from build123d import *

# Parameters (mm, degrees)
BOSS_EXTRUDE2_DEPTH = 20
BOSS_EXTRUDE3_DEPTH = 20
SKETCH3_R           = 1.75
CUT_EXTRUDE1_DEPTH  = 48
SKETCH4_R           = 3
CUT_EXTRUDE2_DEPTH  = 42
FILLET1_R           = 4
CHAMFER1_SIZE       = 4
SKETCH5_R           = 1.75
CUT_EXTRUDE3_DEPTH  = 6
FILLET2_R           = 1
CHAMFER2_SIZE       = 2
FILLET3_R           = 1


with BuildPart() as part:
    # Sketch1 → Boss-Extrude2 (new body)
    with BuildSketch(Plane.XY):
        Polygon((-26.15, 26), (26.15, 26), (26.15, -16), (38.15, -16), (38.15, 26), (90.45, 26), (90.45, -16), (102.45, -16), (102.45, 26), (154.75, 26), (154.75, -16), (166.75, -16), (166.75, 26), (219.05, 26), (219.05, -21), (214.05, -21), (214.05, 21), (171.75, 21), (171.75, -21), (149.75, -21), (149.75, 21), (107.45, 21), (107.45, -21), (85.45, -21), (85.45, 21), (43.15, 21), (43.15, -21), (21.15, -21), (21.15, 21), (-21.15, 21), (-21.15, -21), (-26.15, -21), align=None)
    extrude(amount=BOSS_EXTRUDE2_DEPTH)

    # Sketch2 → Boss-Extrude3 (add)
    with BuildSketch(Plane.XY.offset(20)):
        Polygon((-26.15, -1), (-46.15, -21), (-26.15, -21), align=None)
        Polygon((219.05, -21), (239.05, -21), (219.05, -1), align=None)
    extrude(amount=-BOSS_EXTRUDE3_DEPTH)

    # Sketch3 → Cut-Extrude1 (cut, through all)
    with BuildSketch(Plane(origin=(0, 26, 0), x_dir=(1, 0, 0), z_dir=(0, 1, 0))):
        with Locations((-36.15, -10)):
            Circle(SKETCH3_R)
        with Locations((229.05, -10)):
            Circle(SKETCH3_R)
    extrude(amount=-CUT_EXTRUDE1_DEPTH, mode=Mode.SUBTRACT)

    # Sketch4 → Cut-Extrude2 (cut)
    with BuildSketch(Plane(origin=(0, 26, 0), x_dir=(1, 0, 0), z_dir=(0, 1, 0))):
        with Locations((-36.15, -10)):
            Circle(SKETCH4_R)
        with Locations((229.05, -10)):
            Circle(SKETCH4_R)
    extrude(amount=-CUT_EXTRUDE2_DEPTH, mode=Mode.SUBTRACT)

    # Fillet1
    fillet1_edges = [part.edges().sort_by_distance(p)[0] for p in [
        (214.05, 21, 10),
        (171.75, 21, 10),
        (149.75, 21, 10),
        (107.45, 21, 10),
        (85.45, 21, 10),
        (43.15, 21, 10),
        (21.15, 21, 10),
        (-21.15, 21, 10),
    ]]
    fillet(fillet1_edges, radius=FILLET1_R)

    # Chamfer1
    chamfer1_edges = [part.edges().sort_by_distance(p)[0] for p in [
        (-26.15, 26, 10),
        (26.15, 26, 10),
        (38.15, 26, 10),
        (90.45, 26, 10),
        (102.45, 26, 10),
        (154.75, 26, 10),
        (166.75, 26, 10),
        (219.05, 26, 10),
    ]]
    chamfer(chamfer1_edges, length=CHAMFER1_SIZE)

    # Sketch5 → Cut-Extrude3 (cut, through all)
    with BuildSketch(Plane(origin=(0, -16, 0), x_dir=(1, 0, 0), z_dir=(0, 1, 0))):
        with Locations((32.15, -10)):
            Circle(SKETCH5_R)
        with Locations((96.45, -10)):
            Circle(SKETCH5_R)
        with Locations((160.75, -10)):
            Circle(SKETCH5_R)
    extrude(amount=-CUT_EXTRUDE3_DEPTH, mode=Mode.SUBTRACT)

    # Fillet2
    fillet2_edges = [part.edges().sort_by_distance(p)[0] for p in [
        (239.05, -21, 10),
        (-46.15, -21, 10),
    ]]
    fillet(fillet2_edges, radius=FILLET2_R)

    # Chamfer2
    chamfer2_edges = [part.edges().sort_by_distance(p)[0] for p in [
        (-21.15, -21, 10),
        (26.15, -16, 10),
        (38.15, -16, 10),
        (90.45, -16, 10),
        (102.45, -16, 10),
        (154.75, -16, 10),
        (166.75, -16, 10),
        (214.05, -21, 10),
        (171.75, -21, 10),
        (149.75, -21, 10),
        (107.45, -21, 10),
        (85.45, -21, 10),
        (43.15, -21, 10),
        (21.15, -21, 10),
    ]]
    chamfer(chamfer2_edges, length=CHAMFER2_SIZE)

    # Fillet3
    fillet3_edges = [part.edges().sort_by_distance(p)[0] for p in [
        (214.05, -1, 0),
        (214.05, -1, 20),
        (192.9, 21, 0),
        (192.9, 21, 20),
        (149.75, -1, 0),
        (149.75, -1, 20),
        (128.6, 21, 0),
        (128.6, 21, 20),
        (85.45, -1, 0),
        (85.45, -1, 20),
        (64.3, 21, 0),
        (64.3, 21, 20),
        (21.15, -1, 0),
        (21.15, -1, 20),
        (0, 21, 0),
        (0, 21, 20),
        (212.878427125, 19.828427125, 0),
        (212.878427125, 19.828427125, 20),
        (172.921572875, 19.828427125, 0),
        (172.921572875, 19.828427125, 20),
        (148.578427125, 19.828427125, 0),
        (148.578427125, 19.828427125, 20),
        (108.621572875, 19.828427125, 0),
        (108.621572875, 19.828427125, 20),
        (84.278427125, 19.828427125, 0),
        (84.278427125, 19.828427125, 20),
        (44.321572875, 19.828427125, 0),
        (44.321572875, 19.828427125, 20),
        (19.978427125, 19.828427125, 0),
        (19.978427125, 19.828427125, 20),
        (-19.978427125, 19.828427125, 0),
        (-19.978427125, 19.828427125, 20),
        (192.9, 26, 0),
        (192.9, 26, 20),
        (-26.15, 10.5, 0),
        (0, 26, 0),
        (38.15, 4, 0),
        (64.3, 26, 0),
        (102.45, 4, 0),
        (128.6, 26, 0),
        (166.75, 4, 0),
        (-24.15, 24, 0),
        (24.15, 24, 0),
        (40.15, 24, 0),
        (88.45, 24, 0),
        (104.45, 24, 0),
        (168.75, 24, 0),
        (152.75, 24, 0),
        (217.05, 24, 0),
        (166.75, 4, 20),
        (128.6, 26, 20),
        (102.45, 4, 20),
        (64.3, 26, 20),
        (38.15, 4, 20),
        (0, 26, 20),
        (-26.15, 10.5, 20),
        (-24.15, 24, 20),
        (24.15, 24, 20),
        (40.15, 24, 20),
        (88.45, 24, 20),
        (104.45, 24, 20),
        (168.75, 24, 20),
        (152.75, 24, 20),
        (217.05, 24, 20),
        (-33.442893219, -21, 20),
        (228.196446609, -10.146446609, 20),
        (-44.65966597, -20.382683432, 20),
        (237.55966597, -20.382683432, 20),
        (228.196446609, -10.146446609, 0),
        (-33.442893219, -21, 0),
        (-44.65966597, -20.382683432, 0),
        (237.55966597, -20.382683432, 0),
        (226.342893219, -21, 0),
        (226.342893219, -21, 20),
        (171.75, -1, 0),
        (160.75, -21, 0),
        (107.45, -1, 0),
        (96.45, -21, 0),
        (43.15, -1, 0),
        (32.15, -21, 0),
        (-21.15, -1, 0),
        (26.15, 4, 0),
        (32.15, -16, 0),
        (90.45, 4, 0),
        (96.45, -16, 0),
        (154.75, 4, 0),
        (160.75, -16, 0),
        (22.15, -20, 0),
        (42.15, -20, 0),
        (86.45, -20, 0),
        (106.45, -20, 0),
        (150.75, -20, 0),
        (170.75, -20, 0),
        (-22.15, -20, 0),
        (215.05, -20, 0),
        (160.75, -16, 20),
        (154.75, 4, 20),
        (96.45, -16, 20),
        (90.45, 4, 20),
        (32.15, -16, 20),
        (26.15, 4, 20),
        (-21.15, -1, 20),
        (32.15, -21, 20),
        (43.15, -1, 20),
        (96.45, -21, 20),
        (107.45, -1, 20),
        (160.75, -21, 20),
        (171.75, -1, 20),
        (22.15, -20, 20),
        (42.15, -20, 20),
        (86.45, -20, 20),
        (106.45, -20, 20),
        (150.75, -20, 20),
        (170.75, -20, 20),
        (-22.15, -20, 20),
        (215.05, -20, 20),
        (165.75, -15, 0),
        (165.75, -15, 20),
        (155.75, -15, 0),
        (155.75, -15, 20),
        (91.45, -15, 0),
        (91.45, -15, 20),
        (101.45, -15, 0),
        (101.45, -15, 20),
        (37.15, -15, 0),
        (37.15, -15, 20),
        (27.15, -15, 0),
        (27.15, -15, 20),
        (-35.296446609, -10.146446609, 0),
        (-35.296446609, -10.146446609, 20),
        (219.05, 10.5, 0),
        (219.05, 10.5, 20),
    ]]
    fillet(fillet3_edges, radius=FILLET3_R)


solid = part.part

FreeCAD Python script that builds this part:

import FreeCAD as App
import Part
import Sketcher
from FreeCAD import Vector
Q = App.Units.Quantity


def edges_at(feature, points):
    """Names of the edges that pass closest to the given points."""
    edges = feature.Shape.Edges
    near = lambda p: min(range(len(edges)), key=lambda i: edges[i].distToShape(Part.Vertex(*p))[0])
    return sorted({f"Edge{near(p) + 1}" for p in points})

doc = App.newDocument("Part")
body = doc.addObject("PartDesign::Body", "Body")

sketch1 = body.newObject("Sketcher::SketchObject", "Sketch")
sketch1.AttachmentSupport = (doc.getObject("XY_Plane"), [""])
sketch1.MapMode = "FlatFace"
sketch1.addGeometry(Part.LineSegment(Vector(26.15, 26, 0), Vector(-26.15, 26, 0)), False)
sketch1.addGeometry(Part.LineSegment(Vector(-26.15, 26, 0), Vector(-26.15, -21, 0)), False)
sketch1.addGeometry(Part.LineSegment(Vector(-26.15, -21, 0), Vector(-21.15, -21, 0)), False)
sketch1.addGeometry(Part.LineSegment(Vector(-21.15, -21, 0), Vector(-21.15, 21, 0)), False)
sketch1.addGeometry(Part.LineSegment(Vector(-21.15, 21, 0), Vector(21.15, 21, 0)), False)
sketch1.addGeometry(Part.LineSegment(Vector(21.15, 21, 0), Vector(21.15, -21, 0)), False)
sketch1.addGeometry(Part.LineSegment(Vector(21.15, -21, 0), Vector(43.15, -21, 0)), False)
sketch1.addGeometry(Part.LineSegment(Vector(43.15, -21, 0), Vector(43.15, 21, 0)), False)
sketch1.addGeometry(Part.LineSegment(Vector(43.15, 21, 0), Vector(85.45, 21, 0)), False)
sketch1.addGeometry(Part.LineSegment(Vector(85.45, 21, 0), Vector(85.45, -21, 0)), False)
sketch1.addGeometry(Part.LineSegment(Vector(85.45, -21, 0), Vector(107.45, -21, 0)), False)
sketch1.addGeometry(Part.LineSegment(Vector(107.45, -21, 0), Vector(107.45, 21, 0)), False)
sketch1.addGeometry(Part.LineSegment(Vector(107.45, 21, 0), Vector(149.75, 21, 0)), False)
sketch1.addGeometry(Part.LineSegment(Vector(149.75, 21, 0), Vector(149.75, -21, 0)), False)
sketch1.addGeometry(Part.LineSegment(Vector(149.75, -21, 0), Vector(171.75, -21, 0)), False)
sketch1.addGeometry(Part.LineSegment(Vector(171.75, -21, 0), Vector(171.75, 21, 0)), False)
sketch1.addGeometry(Part.LineSegment(Vector(171.75, 21, 0), Vector(214.05, 21, 0)), False)
sketch1.addGeometry(Part.LineSegment(Vector(214.05, 21, 0), Vector(214.05, -21, 0)), False)
sketch1.addGeometry(Part.LineSegment(Vector(214.05, -21, 0), Vector(219.05, -21, 0)), False)
sketch1.addGeometry(Part.LineSegment(Vector(219.05, -21, 0), Vector(219.05, 26, 0)), False)
sketch1.addGeometry(Part.LineSegment(Vector(219.05, 26, 0), Vector(166.75, 26, 0)), False)
sketch1.addGeometry(Part.LineSegment(Vector(166.75, 26, 0), Vector(166.75, -16, 0)), False)
sketch1.addGeometry(Part.LineSegment(Vector(166.75, -16, 0), Vector(154.75, -16, 0)), False)
sketch1.addGeometry(Part.LineSegment(Vector(154.75, -16, 0), Vector(154.75, 26, 0)), False)
sketch1.addGeometry(Part.LineSegment(Vector(154.75, 26, 0), Vector(102.45, 26, 0)), False)
sketch1.addGeometry(Part.LineSegment(Vector(102.45, 26, 0), Vector(102.45, -16, 0)), False)
sketch1.addGeometry(Part.LineSegment(Vector(102.45, -16, 0), Vector(90.45, -16, 0)), False)
sketch1.addGeometry(Part.LineSegment(Vector(90.45, -16, 0), Vector(90.45, 26, 0)), False)
sketch1.addGeometry(Part.LineSegment(Vector(90.45, 26, 0), Vector(38.15, 26, 0)), False)
sketch1.addGeometry(Part.LineSegment(Vector(38.15, 26, 0), Vector(38.15, -16, 0)), False)
sketch1.addGeometry(Part.LineSegment(Vector(38.15, -16, 0), Vector(26.15, -16, 0)), False)
sketch1.addGeometry(Part.LineSegment(Vector(26.15, -16, 0), Vector(26.15, 26, 0)), False)
sketch1.addConstraint(Sketcher.Constraint("Coincident", 0, 2, 1, 1))
sketch1.addConstraint(Sketcher.Constraint("Coincident", 1, 2, 2, 1))
sketch1.addConstraint(Sketcher.Constraint("Coincident", 2, 2, 3, 1))
sketch1.addConstraint(Sketcher.Constraint("Coincident", 3, 2, 4, 1))
sketch1.addConstraint(Sketcher.Constraint("Coincident", 4, 2, 5, 1))
sketch1.addConstraint(Sketcher.Constraint("Coincident", 5, 2, 6, 1))
sketch1.addConstraint(Sketcher.Constraint("Coincident", 6, 2, 7, 1))
sketch1.addConstraint(Sketcher.Constraint("Coincident", 7, 2, 8, 1))
sketch1.addConstraint(Sketcher.Constraint("Coincident", 8, 2, 9, 1))
sketch1.addConstraint(Sketcher.Constraint("Coincident", 9, 2, 10, 1))
sketch1.addConstraint(Sketcher.Constraint("Coincident", 10, 2, 11, 1))
sketch1.addConstraint(Sketcher.Constraint("Coincident", 11, 2, 12, 1))
sketch1.addConstraint(Sketcher.Constraint("Coincident", 12, 2, 13, 1))
sketch1.addConstraint(Sketcher.Constraint("Coincident", 13, 2, 14, 1))
sketch1.addConstraint(Sketcher.Constraint("Coincident", 14, 2, 15, 1))
sketch1.addConstraint(Sketcher.Constraint("Coincident", 15, 2, 16, 1))
sketch1.addConstraint(Sketcher.Constraint("Coincident", 16, 2, 17, 1))
sketch1.addConstraint(Sketcher.Constraint("Coincident", 17, 2, 18, 1))
sketch1.addConstraint(Sketcher.Constraint("Coincident", 18, 2, 19, 1))
sketch1.addConstraint(Sketcher.Constraint("Coincident", 19, 2, 20, 1))
sketch1.addConstraint(Sketcher.Constraint("Coincident", 20, 2, 21, 1))
sketch1.addConstraint(Sketcher.Constraint("Coincident", 21, 2, 22, 1))
sketch1.addConstraint(Sketcher.Constraint("Coincident", 22, 2, 23, 1))
sketch1.addConstraint(Sketcher.Constraint("Coincident", 23, 2, 24, 1))
sketch1.addConstraint(Sketcher.Constraint("Coincident", 24, 2, 25, 1))
sketch1.addConstraint(Sketcher.Constraint("Coincident", 25, 2, 26, 1))
sketch1.addConstraint(Sketcher.Constraint("Coincident", 26, 2, 27, 1))
sketch1.addConstraint(Sketcher.Constraint("Coincident", 27, 2, 28, 1))
sketch1.addConstraint(Sketcher.Constraint("Coincident", 28, 2, 29, 1))
sketch1.addConstraint(Sketcher.Constraint("Coincident", 29, 2, 30, 1))
sketch1.addConstraint(Sketcher.Constraint("Coincident", 30, 2, 31, 1))
sketch1.addConstraint(Sketcher.Constraint("Coincident", 31, 2, 0, 1))
sketch1.addConstraint(Sketcher.Constraint("Horizontal", 0))
sketch1.addConstraint(Sketcher.Constraint("Vertical", 1))
sketch1.addConstraint(Sketcher.Constraint("Horizontal", 2))
sketch1.addConstraint(Sketcher.Constraint("Vertical", 3))
sketch1.addConstraint(Sketcher.Constraint("Horizontal", 4))
sketch1.addConstraint(Sketcher.Constraint("Vertical", 5))
sketch1.addConstraint(Sketcher.Constraint("Horizontal", 6))
sketch1.addConstraint(Sketcher.Constraint("Vertical", 7))
sketch1.addConstraint(Sketcher.Constraint("Horizontal", 8))
sketch1.addConstraint(Sketcher.Constraint("Vertical", 9))
sketch1.addConstraint(Sketcher.Constraint("Horizontal", 10))
sketch1.addConstraint(Sketcher.Constraint("Vertical", 11))
sketch1.addConstraint(Sketcher.Constraint("Horizontal", 12))
sketch1.addConstraint(Sketcher.Constraint("Vertical", 13))
sketch1.addConstraint(Sketcher.Constraint("Horizontal", 14))
sketch1.addConstraint(Sketcher.Constraint("Vertical", 15))
sketch1.addConstraint(Sketcher.Constraint("Horizontal", 16))
sketch1.addConstraint(Sketcher.Constraint("Vertical", 17))
sketch1.addConstraint(Sketcher.Constraint("Horizontal", 18))
sketch1.addConstraint(Sketcher.Constraint("Vertical", 19))
sketch1.addConstraint(Sketcher.Constraint("Horizontal", 20))
sketch1.addConstraint(Sketcher.Constraint("Vertical", 21))
sketch1.addConstraint(Sketcher.Constraint("Horizontal", 22))
sketch1.addConstraint(Sketcher.Constraint("Vertical", 23))
sketch1.addConstraint(Sketcher.Constraint("Horizontal", 24))
sketch1.addConstraint(Sketcher.Constraint("Vertical", 25))
sketch1.addConstraint(Sketcher.Constraint("Horizontal", 26))
sketch1.addConstraint(Sketcher.Constraint("Vertical", 27))
sketch1.addConstraint(Sketcher.Constraint("Horizontal", 28))
sketch1.addConstraint(Sketcher.Constraint("Vertical", 29))
sketch1.addConstraint(Sketcher.Constraint("Horizontal", 30))
sketch1.addConstraint(Sketcher.Constraint("Vertical", 31))
sketch1.addConstraint(Sketcher.Constraint("Symmetric", 2, 2, 4, 2, -1, 1))
sketch1.addConstraint(Sketcher.Constraint("Horizontal", 2, 2, 5, 2))
sketch1.addConstraint(Sketcher.Constraint("Horizontal", 4, 2, 7, 2))
sketch1.addConstraint(Sketcher.Constraint("Horizontal", 6, 2, 9, 2))
sketch1.addConstraint(Sketcher.Constraint("Horizontal", 8, 2, 11, 2))
sketch1.addConstraint(Sketcher.Constraint("Horizontal", 10, 2, 13, 2))
sketch1.addConstraint(Sketcher.Constraint("Horizontal", 12, 2, 15, 2))
sketch1.addConstraint(Sketcher.Constraint("Horizontal", 14, 2, 17, 2))
sketch1.addConstraint(Sketcher.Constraint("Horizontal", 0, 2, 19, 2))
sketch1.addConstraint(Sketcher.Constraint("Horizontal", 20, 2, 23, 2))
sketch1.addConstraint(Sketcher.Constraint("Horizontal", 22, 2, 25, 2))
sketch1.addConstraint(Sketcher.Constraint("Horizontal", 24, 2, 27, 2))
sketch1.addConstraint(Sketcher.Constraint("Horizontal", 26, 2, 29, 2))
sketch1.addConstraint(Sketcher.Constraint("Equal", 4, 8))
sketch1.addConstraint(Sketcher.Constraint("Equal", 6, 10))
sketch1.addConstraint(Sketcher.Constraint("Equal", 8, 12))
sketch1.addConstraint(Sketcher.Constraint("Equal", 10, 14))
sketch1.addConstraint(Sketcher.Constraint("Equal", 12, 16))
sketch1.addConstraint(Sketcher.Constraint("Equal", 2, 18))
sketch1.addConstraint(Sketcher.Constraint("Equal", 0, 20))
sketch1.addConstraint(Sketcher.Constraint("Equal", 20, 24))
sketch1.addConstraint(Sketcher.Constraint("Equal", 22, 26))
sketch1.addConstraint(Sketcher.Constraint("Equal", 24, 28))
sketch1.addConstraint(Sketcher.Constraint("Equal", 26, 30))
sketch1.addConstraint(Sketcher.Constraint("Equal", 17, 21))
sketch1.addConstraint(Sketcher.Constraint("DistanceX", 2, 1, 2, 2, Q("5 mm")))
sketch1.addConstraint(Sketcher.Constraint("DistanceX", 6, 1, 6, 2, Q("22 mm")))
sketch1.addConstraint(Sketcher.Constraint("DistanceX", 22, 2, 22, 1, Q("12 mm")))
sketch1.addConstraint(Sketcher.Constraint("DistanceY", 1, 2, 1, 1, Q("47 mm")))
sketch1.addConstraint(Sketcher.Constraint("DistanceY", 3, 1, 3, 2, Q("42 mm")))
sketch1.addConstraint(Sketcher.Constraint("DistanceX", 0, 2, 0, 1, Q("52.3 mm")))
pad1 = body.newObject("PartDesign::Pad", "Pad")
pad1.Profile = sketch1
pad1.Length = 20

sketch2 = body.newObject("Sketcher::SketchObject", "Sketch001")
sketch2.AttachmentSupport = (doc.getObject("XY_Plane"), [""])
sketch2.MapMode = "FlatFace"
sketch2.AttachmentOffset = App.Placement(Vector(0, 0, 20), App.Rotation())
sketch2.addGeometry(Part.LineSegment(Vector(-26.15, -1, 0), Vector(-46.15, -21, 0)), False)
sketch2.addGeometry(Part.LineSegment(Vector(-46.15, -21, 0), Vector(-26.15, -21, 0)), False)
sketch2.addGeometry(Part.LineSegment(Vector(-26.15, -21, 0), Vector(-26.15, -1, 0)), False)
sketch2.addGeometry(Part.LineSegment(Vector(219.05, -21, 0), Vector(239.05, -21, 0)), False)
sketch2.addGeometry(Part.LineSegment(Vector(239.05, -21, 0), Vector(219.05, -1, 0)), False)
sketch2.addGeometry(Part.LineSegment(Vector(219.05, -1, 0), Vector(219.05, -21, 0)), False)
sketch2.addConstraint(Sketcher.Constraint("Coincident", 0, 2, 1, 1))
sketch2.addConstraint(Sketcher.Constraint("Coincident", 1, 2, 2, 1))
sketch2.addConstraint(Sketcher.Constraint("Coincident", 2, 2, 0, 1))
sketch2.addConstraint(Sketcher.Constraint("Coincident", 3, 2, 4, 1))
sketch2.addConstraint(Sketcher.Constraint("Coincident", 4, 2, 5, 1))
sketch2.addConstraint(Sketcher.Constraint("Coincident", 5, 2, 3, 1))
sketch2.addConstraint(Sketcher.Constraint("Horizontal", 1))
sketch2.addConstraint(Sketcher.Constraint("Vertical", 2))
sketch2.addConstraint(Sketcher.Constraint("Horizontal", 3))
sketch2.addConstraint(Sketcher.Constraint("Vertical", 5))
sketch2.addConstraint(Sketcher.Constraint("Perpendicular", 0, 4))
sketch2.addConstraint(Sketcher.Constraint("Horizontal", 1, 2, 3, 2))
sketch2.addConstraint(Sketcher.Constraint("Horizontal", 2, 2, 4, 2))
sketch2.addConstraint(Sketcher.Constraint("Equal", 1, 3))
sketch2.addConstraint(Sketcher.Constraint("DistanceX", 1, 1, 1, 2, Q("20 mm")))
sketch2.addConstraint(Sketcher.Constraint("DistanceY", 0, 2, -1, 1, Q("21 mm")))
sketch2.addConstraint(Sketcher.Constraint("DistanceX", 1, 2, 3, 2, Q("265.2 mm")))
sketch2.addConstraint(Sketcher.Constraint("DistanceX", 0, 2, -1, 1, Q("46.15 mm")))
pad2 = body.newObject("PartDesign::Pad", "Pad001")
pad2.Profile = sketch2
pad2.Length = 20
pad2.Reversed = True

sketch3 = body.newObject("Sketcher::SketchObject", "Sketch002")
sketch3.AttachmentSupport = (doc.getObject("XZ_Plane"), [""])
sketch3.MapMode = "FlatFace"
sketch3.AttachmentOffset = App.Placement(Vector(0, 0, -26), App.Rotation())
sketch3.addGeometry(Part.Circle(Vector(-36.15, 10, 0), Vector(0, 0, 1), 1.75), False)
sketch3.addGeometry(Part.Circle(Vector(229.05, 10, 0), Vector(0, 0, 1), 1.75), False)
sketch3.addConstraint(Sketcher.Constraint("Equal", 0, 1))
sketch3.addConstraint(Sketcher.Constraint("Horizontal", 0, 3, 1, 3))
sketch3.addConstraint(Sketcher.Constraint("Diameter", 0, Q("3.5 mm")))
sketch3.addConstraint(Sketcher.Constraint("DistanceY", -1, 1, 0, 3, Q("10 mm")))
sketch3.addConstraint(Sketcher.Constraint("DistanceX", 0, 3, 1, 3, Q("265.2 mm")))
sketch3.addConstraint(Sketcher.Constraint("DistanceX", 0, 3, -1, 1, Q("36.15 mm")))
pocket1 = body.newObject("PartDesign::Pocket", "Pocket")
pocket1.Profile = sketch3
pocket1.Type = "ThroughAll"
pocket1.Reversed = True

sketch4 = body.newObject("Sketcher::SketchObject", "Sketch003")
sketch4.AttachmentSupport = (doc.getObject("XZ_Plane"), [""])
sketch4.MapMode = "FlatFace"
sketch4.AttachmentOffset = App.Placement(Vector(0, 0, -26), App.Rotation())
sketch4.addGeometry(Part.Circle(Vector(-36.15, 10, 0), Vector(0, 0, 1), 3), False)
sketch4.addGeometry(Part.Circle(Vector(229.05, 10, 0), Vector(0, 0, 1), 3), False)
sketch4.addConstraint(Sketcher.Constraint("Equal", 0, 1))
sketch4.addConstraint(Sketcher.Constraint("Horizontal", 0, 3, 1, 3))
sketch4.addConstraint(Sketcher.Constraint("Diameter", 0, Q("6 mm")))
sketch4.addConstraint(Sketcher.Constraint("DistanceY", -1, 1, 0, 3, Q("10 mm")))
sketch4.addConstraint(Sketcher.Constraint("DistanceX", 0, 3, 1, 3, Q("265.2 mm")))
sketch4.addConstraint(Sketcher.Constraint("DistanceX", 0, 3, -1, 1, Q("36.15 mm")))
pocket2 = body.newObject("PartDesign::Pocket", "Pocket001")
pocket2.Profile = sketch4
pocket2.Length = 42
pocket2.Reversed = True
doc.recompute()

fillet = body.newObject("PartDesign::Fillet", "Fillet")
fillet.Base = (pocket2, edges_at(pocket2, [
    (214.05, 21, 10),
    (171.75, 21, 10),
    (149.75, 21, 10),
    (107.45, 21, 10),
    (85.45, 21, 10),
    (43.15, 21, 10),
    (21.15, 21, 10),
    (-21.15, 21, 10),
]))
fillet.Radius = 4
doc.recompute()

chamfer = body.newObject("PartDesign::Chamfer", "Chamfer")
chamfer.Base = (fillet, edges_at(fillet, [
    (-26.15, 26, 10),
    (26.15, 26, 10),
    (38.15, 26, 10),
    (90.45, 26, 10),
    (102.45, 26, 10),
    (154.75, 26, 10),
    (166.75, 26, 10),
    (219.05, 26, 10),
]))
chamfer.Size = 4

sketch5 = body.newObject("Sketcher::SketchObject", "Sketch004")
sketch5.AttachmentSupport = (doc.getObject("XZ_Plane"), [""])
sketch5.MapMode = "FlatFace"
sketch5.AttachmentOffset = App.Placement(Vector(0, 0, 16), App.Rotation())
sketch5.addGeometry(Part.Circle(Vector(32.15, 10, 0), Vector(0, 0, 1), 1.75), False)
sketch5.addGeometry(Part.Circle(Vector(96.45, 10, 0), Vector(0, 0, 1), 1.75), False)
sketch5.addGeometry(Part.Circle(Vector(160.75, 10, 0), Vector(0, 0, 1), 1.75), False)
sketch5.addConstraint(Sketcher.Constraint("Equal", 0, 1))
sketch5.addConstraint(Sketcher.Constraint("Equal", 1, 2))
sketch5.addConstraint(Sketcher.Constraint("Horizontal", 0, 3, 1, 3))
sketch5.addConstraint(Sketcher.Constraint("Horizontal", 1, 3, 2, 3))
sketch5.addConstraint(Sketcher.Constraint("Diameter", 0, Q("3.5 mm")))
sketch5.addConstraint(Sketcher.Constraint("DistanceY", -1, 1, 0, 3, Q("10 mm")))
sketch5.addConstraint(Sketcher.Constraint("DistanceX", 0, 3, 1, 3, Q("64.3 mm")))
sketch5.addConstraint(Sketcher.Constraint("DistanceX", 1, 3, 2, 3, Q("64.3 mm")))
sketch5.addConstraint(Sketcher.Constraint("DistanceX", -1, 1, 0, 3, Q("32.15 mm")))
pocket3 = body.newObject("PartDesign::Pocket", "Pocket002")
pocket3.Profile = sketch5
pocket3.Type = "ThroughAll"
pocket3.Reversed = True
doc.recompute()

fillet2 = body.newObject("PartDesign::Fillet", "Fillet001")
fillet2.Base = (pocket3, edges_at(pocket3, [(239.05, -21, 10), (-46.15, -21, 10)]))
fillet2.Radius = 1
doc.recompute()

chamfer2 = body.newObject("PartDesign::Chamfer", "Chamfer001")
chamfer2.Base = (fillet2, edges_at(fillet2, [
    (-21.15, -21, 10),
    (26.15, -16, 10),
    (38.15, -16, 10),
    (90.45, -16, 10),
    (102.45, -16, 10),
    (154.75, -16, 10),
    (166.75, -16, 10),
    (214.05, -21, 10),
    (171.75, -21, 10),
    (149.75, -21, 10),
    (107.45, -21, 10),
    (85.45, -21, 10),
    (43.15, -21, 10),
    (21.15, -21, 10),
]))
chamfer2.Size = 2
doc.recompute()

fillet3 = body.newObject("PartDesign::Fillet", "Fillet002")
fillet3.Base = (chamfer2, edges_at(chamfer2, [
    (214.05, -1, 0),
    (214.05, -1, 20),
    (192.9, 21, 0),
    (192.9, 21, 20),
    (149.75, -1, 0),
    (149.75, -1, 20),
    (128.6, 21, 0),
    (128.6, 21, 20),
    (85.45, -1, 0),
    (85.45, -1, 20),
    (64.3, 21, 0),
    (64.3, 21, 20),
    (21.15, -1, 0),
    (21.15, -1, 20),
    (0, 21, 0),
    (0, 21, 20),
    (212.878, 19.828, 0),
    (212.878, 19.828, 20),
    (172.922, 19.828, 0),
    (172.922, 19.828, 20),
    (148.578, 19.828, 0),
    (148.578, 19.828, 20),
    (108.622, 19.828, 0),
    (108.622, 19.828, 20),
    (84.278, 19.828, 0),
    (84.278, 19.828, 20),
    (44.322, 19.828, 0),
    (44.322, 19.828, 20),
    (19.978, 19.828, 0),
    (19.978, 19.828, 20),
    (-19.978, 19.828, 0),
    (-19.978, 19.828, 20),
    (192.9, 26, 0),
    (192.9, 26, 20),
    (-26.15, 10.5, 0),
    (0, 26, 0),
    (38.15, 4, 0),
    (64.3, 26, 0),
    (102.45, 4, 0),
    (128.6, 26, 0),
    (166.75, 4, 0),
    (-24.15, 24, 0),
    (24.15, 24, 0),
    (40.15, 24, 0),
    (88.45, 24, 0),
    (104.45, 24, 0),
    (168.75, 24, 0),
    (152.75, 24, 0),
    (217.05, 24, 0),
    (166.75, 4, 20),
    (128.6, 26, 20),
    (102.45, 4, 20),
    (64.3, 26, 20),
    (38.15, 4, 20),
    (0, 26, 20),
    (-26.15, 10.5, 20),
    (-24.15, 24, 20),
    (24.15, 24, 20),
    (40.15, 24, 20),
    (88.45, 24, 20),
    (104.45, 24, 20),
    (168.75, 24, 20),
    (152.75, 24, 20),
    (217.05, 24, 20),
    (-33.443, -21, 20),
    (228.196, -10.146, 20),
    (-44.66, -20.383, 20),
    (237.56, -20.383, 20),
    (228.196, -10.146, 0),
    (-33.443, -21, 0),
    (-44.66, -20.383, 0),
    (237.56, -20.383, 0),
    (226.343, -21, 0),
    (226.343, -21, 20),
    (171.75, -1, 0),
    (160.75, -21, 0),
    (107.45, -1, 0),
    (96.45, -21, 0),
    (43.15, -1, 0),
    (32.15, -21, 0),
    (-21.15, -1, 0),
    (26.15, 4, 0),
    (32.15, -16, 0),
    (90.45, 4, 0),
    (96.45, -16, 0),
    (154.75, 4, 0),
    (160.75, -16, 0),
    (22.15, -20, 0),
    (42.15, -20, 0),
    (86.45, -20, 0),
    (106.45, -20, 0),
    (150.75, -20, 0),
    (170.75, -20, 0),
    (-22.15, -20, 0),
    (215.05, -20, 0),
    (160.75, -16, 20),
    (154.75, 4, 20),
    (96.45, -16, 20),
    (90.45, 4, 20),
    (32.15, -16, 20),
    (26.15, 4, 20),
    (-21.15, -1, 20),
    (32.15, -21, 20),
    (43.15, -1, 20),
    (96.45, -21, 20),
    (107.45, -1, 20),
    (160.75, -21, 20),
    (171.75, -1, 20),
    (22.15, -20, 20),
    (42.15, -20, 20),
    (86.45, -20, 20),
    (106.45, -20, 20),
    (150.75, -20, 20),
    (170.75, -20, 20),
    (-22.15, -20, 20),
    (215.05, -20, 20),
    (165.75, -15, 0),
    (165.75, -15, 20),
    (155.75, -15, 0),
    (155.75, -15, 20),
    (91.45, -15, 0),
    (91.45, -15, 20),
    (101.45, -15, 0),
    (101.45, -15, 20),
    (37.15, -15, 0),
    (37.15, -15, 20),
    (27.15, -15, 0),
    (27.15, -15, 20),
    (-35.296, -10.146, 0),
    (-35.296, -10.146, 20),
    (219.05, 10.5, 0),
    (219.05, 10.5, 20),
]))
fillet3.Radius = 1

doc.recompute()
